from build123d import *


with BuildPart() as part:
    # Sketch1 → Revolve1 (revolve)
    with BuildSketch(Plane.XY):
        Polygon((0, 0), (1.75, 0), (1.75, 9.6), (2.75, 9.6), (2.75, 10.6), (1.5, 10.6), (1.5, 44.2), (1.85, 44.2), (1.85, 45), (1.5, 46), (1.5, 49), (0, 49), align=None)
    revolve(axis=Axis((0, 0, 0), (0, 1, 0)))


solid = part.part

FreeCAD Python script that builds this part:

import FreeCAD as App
import Part
import Sketcher

V = App.Vector

doc = App.newDocument("Part")
params = doc.addObject("Spreadsheet::Sheet", "Params")
for row, (alias, value) in enumerate([
    ("sketch1_width", "1 mm"),
    ("sketch1_height", "3 mm"),
    ("sketch1_height2", "49 mm"),
    ("sketch1_width2", "1.5 mm"),
    ("sketch1_height3", "9.6 mm"),
    ("revolution_angle", "360 deg"),
], start=1):
    params.set(f"A{row}", alias)
    params.set(f"B{row}", "=" + value)
    params.setAlias(f"B{row}", alias)

body = doc.addObject("PartDesign::Body", "Body")

# Sketch on XY plane
sketch1 = doc.addObject("Sketcher::SketchObject", "Sketch")
body.addObject(sketch1)
sketch1.AttachmentSupport = (doc.XY_Plane, [""])
sketch1.MapMode = "FlatFace"
sketch1.addGeometry(Part.LineSegment(V(0, 0, 0), V(1.75, 0, 0)), False)
sketch1.addGeometry(Part.LineSegment(V(1.75, 0, 0), V(1.75, 9.6, 0)), False)
sketch1.addGeometry(Part.LineSegment(V(1.75, 9.6, 0), V(2.75, 9.6, 0)), False)
sketch1.addGeometry(Part.LineSegment(V(2.75, 9.6, 0), V(2.75, 10.6, 0)), False)
sketch1.addGeometry(Part.LineSegment(V(2.75, 10.6, 0), V(1.5, 10.6, 0)), False)
sketch1.addGeometry(Part.LineSegment(V(1.5, 10.6, 0), V(1.5, 44.2, 0)), False)
sketch1.addGeometry(Part.LineSegment(V(1.5, 44.2, 0), V(1.85, 44.2, 0)), False)
sketch1.addGeometry(Part.LineSegment(V(1.85, 44.2, 0), V(1.85, 45, 0)), False)
sketch1.addGeometry(Part.LineSegment(V(1.85, 45, 0), V(1.5, 46, 0)), False)
sketch1.addGeometry(Part.LineSegment(V(1.5, 46, 0), V(1.5, 49, 0)), False)
sketch1.addGeometry(Part.LineSegment(V(1.5, 49, 0), V(0, 49, 0)), False)
sketch1.addGeometry(Part.LineSegment(V(0, 49, 0), V(0, 0, 0)), False)
sketch1.addConstraint(Sketcher.Constraint("Coincident", 0, 2, 1, 1))
sketch1.addConstraint(Sketcher.Constraint("Coincident", 1, 2, 2, 1))
sketch1.addConstraint(Sketcher.Constraint("Coincident", 2, 2, 3, 1))
sketch1.addConstraint(Sketcher.Constraint("Coincident", 3, 2, 4, 1))
sketch1.addConstraint(Sketcher.Constraint("Coincident", 4, 2, 5, 1))
sketch1.addConstraint(Sketcher.Constraint("Coincident", 5, 2, 6, 1))
sketch1.addConstraint(Sketcher.Constraint("Coincident", 6, 2, 7, 1))
sketch1.addConstraint(Sketcher.Constraint("Coincident", 7, 2, 8, 1))
sketch1.addConstraint(Sketcher.Constraint("Coincident", 8, 2, 9, 1))
sketch1.addConstraint(Sketcher.Constraint("Coincident", 9, 2, 10, 1))
sketch1.addConstraint(Sketcher.Constraint("Coincident", 10, 2, 11, 1))
sketch1.addConstraint(Sketcher.Constraint("Coincident", 11, 2, 0, 1))
sketch1.addConstraint(Sketcher.Constraint("Horizontal", 0))
sketch1.addConstraint(Sketcher.Constraint("Vertical", 1))
sketch1.addConstraint(Sketcher.Constraint("Horizontal", 2))
sketch1.addConstraint(Sketcher.Constraint("Vertical", 3))
sketch1.addConstraint(Sketcher.Constraint("Horizontal", 4))
sketch1.addConstraint(Sketcher.Constraint("Vertical", 5))
sketch1.addConstraint(Sketcher.Constraint("Horizontal", 6))
sketch1.addConstraint(Sketcher.Constraint("Vertical", 7))
sketch1.addConstraint(Sketcher.Constraint("Vertical", 9))
sketch1.addConstraint(Sketcher.Constraint("Horizontal", 10))
sketch1.addConstraint(Sketcher.Constraint("Vertical", 11))
sketch1.addConstraint(Sketcher.Constraint("Coincident", 11, 2, -1, 1))
sketch1.addConstraint(Sketcher.Constraint("Vertical", 5, 2, 8, 2))
sketch1.addConstraint(Sketcher.Constraint("Equal", 2, 3))
sketch1.addConstraint(Sketcher.Constraint("DistanceX", 2, 1, 2, 2, 1.0))
sketch1.addConstraint(Sketcher.Constraint("DistanceY", 9, 1, 9, 2, 3.0))
sketch1.addConstraint(Sketcher.Constraint("DistanceY", 11, 2, 11, 1, 49.0))
sketch1.addConstraint(Sketcher.Constraint("DistanceX", 10, 2, 10, 1, 1.5))
sketch1.addConstraint(Sketcher.Constraint("DistanceY", 1, 1, 1, 2, 9.6))
sketch1.addConstraint(Sketcher.Constraint("DistanceY", 5, 1, 5, 2, 33.6))
sketch1.addConstraint(Sketcher.Constraint("DistanceY", 7, 1, 7, 2, 0.8))
sketch1.addConstraint(Sketcher.Constraint("DistanceX", 0, 1, 0, 2, 1.75))
sketch1.addConstraint(Sketcher.Constraint("DistanceX", 6, 1, 6, 2, 0.35))
sketch1.setExpression("Constraints[26]", "Params.sketch1_width")
sketch1.setExpression("Constraints[27]", "Params.sketch1_height")
sketch1.setExpression("Constraints[28]", "Params.sketch1_height2")
sketch1.setExpression("Constraints[29]", "Params.sketch1_width2")
sketch1.setExpression("Constraints[30]", "Params.sketch1_height3")
revolution = doc.addObject("PartDesign::Revolution", "Revolution")
body.addObject(revolution)
revolution.Profile = sketch1
revolution.ReferenceAxis = (sketch1, ["V_Axis"])
revolution.setExpression("Angle", "Params.revolution_angle")

doc.recompute()
